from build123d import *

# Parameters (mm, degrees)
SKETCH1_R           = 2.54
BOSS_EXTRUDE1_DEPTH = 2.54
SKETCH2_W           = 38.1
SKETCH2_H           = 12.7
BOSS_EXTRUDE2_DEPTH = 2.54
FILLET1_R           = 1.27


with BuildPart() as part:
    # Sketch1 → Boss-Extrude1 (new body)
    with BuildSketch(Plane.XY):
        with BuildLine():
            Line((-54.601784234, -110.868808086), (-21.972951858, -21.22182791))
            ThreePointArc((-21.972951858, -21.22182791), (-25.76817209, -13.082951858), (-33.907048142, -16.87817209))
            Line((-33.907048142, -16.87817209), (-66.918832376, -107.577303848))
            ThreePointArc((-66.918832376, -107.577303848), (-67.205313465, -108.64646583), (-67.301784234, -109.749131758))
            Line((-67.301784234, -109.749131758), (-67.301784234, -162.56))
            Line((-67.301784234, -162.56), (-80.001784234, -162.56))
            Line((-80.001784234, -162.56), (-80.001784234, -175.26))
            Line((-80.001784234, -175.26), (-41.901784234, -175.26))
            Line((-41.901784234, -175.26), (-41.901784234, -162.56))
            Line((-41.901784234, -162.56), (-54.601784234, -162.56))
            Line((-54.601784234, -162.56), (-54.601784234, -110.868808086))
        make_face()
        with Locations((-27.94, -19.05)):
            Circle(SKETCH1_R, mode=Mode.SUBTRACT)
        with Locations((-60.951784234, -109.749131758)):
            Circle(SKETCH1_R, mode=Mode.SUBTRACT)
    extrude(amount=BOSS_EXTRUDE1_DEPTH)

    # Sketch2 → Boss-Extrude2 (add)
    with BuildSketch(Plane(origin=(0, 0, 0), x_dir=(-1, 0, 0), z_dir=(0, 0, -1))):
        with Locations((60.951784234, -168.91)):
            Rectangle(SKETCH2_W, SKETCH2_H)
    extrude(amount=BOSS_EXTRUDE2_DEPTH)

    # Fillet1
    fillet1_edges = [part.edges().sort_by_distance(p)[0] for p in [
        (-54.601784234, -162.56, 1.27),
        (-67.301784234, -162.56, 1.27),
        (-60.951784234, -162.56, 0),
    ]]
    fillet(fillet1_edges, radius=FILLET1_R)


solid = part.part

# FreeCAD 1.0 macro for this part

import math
import FreeCAD as App
import Part
import Sketcher

V = App.Vector
Q = App.Units.Quantity


def edges_at(feature, points):
    """Names of the edges that pass closest to the given points."""
    edges = feature.Shape.Edges
    near = lambda p: min(range(len(edges)), key=lambda i: edges[i].distToShape(Part.Vertex(*p))[0])
    return sorted({f"Edge{near(p) + 1}" for p in points})


def add_polygon(sketch, points):
    """Adds a closed chain of lines whose ends are joined by coincident constraints."""
    first, n = sketch.GeometryCount, len(points)
    for a, b in zip(points, points[1:] + points[:1]):
        sketch.addGeometry(Part.LineSegment(App.Vector(*a, 0), App.Vector(*b, 0)), False)
    for i in range(n):
        sketch.addConstraint(Sketcher.Constraint("Coincident", first + i, 2, first + (i + 1) % n, 1))

doc = App.newDocument("Part")
body = doc.addObject("PartDesign::Body", "Body")

sketch1 = doc.addObject("Sketcher::SketchObject", "Sketch")
body.addObject(sketch1)
sketch1.AttachmentSupport = (doc.XY_Plane, [""])
sketch1.MapMode = "FlatFace"
sketch1.addGeometry(Part.LineSegment(V(-54.601784, -110.868808, 0), V(-21.972952, -21.221828, 0)), False)
sketch1.addGeometry(Part.ArcOfCircle(Part.Circle(V(-27.94, -19.05, 0), V(0, 0, 1), 6.35), math.radians(-20), math.radians(160)), False)
sketch1.addGeometry(Part.LineSegment(V(-33.907048, -16.878172, 0), V(-66.918832, -107.577304, 0)), False)
sketch1.addGeometry(Part.ArcOfCircle(Part.Circle(V(-60.951784, -109.749132, 0), V(0, 0, 1), 6.35), math.radians(160), math.radians(180)), False)
sketch1.addGeometry(Part.LineSegment(V(-67.301784, -109.749132, 0), V(-67.301784, -162.56, 0)), False)
sketch1.addGeometry(Part.LineSegment(V(-67.301784, -162.56, 0), V(-80.001784, -162.56, 0)), False)
sketch1.addGeometry(Part.LineSegment(V(-80.001784, -162.56, 0), V(-80.001784, -175.26, 0)), False)
sketch1.addGeometry(Part.LineSegment(V(-80.001784, -175.26, 0), V(-41.901784, -175.26, 0)), False)
sketch1.addGeometry(Part.LineSegment(V(-41.901784, -175.26, 0), V(-41.901784, -162.56, 0)), False)
sketch1.addGeometry(Part.LineSegment(V(-41.901784, -162.56, 0), V(-54.601784, -162.56, 0)), False)
sketch1.addGeometry(Part.LineSegment(V(-54.601784, -162.56, 0), V(-54.601784, -110.868808, 0)), False)
sketch1.addGeometry(Part.Circle(V(-60.951784, -109.749132, 0), V(0, 0, 1), 2.54), False)
sketch1.addGeometry(Part.Circle(V(-27.94, -19.05, 0), V(0, 0, 1), 2.54), False)
sketch1.addConstraint(Sketcher.Constraint("Tangent", 0, 2, 1, 1))
sketch1.addConstraint(Sketcher.Constraint("Tangent", 1, 2, 2, 1))
sketch1.addConstraint(Sketcher.Constraint("Tangent", 2, 2, 3, 1))
sketch1.addConstraint(Sketcher.Constraint("Tangent", 3, 2, 4, 1))
sketch1.addConstraint(Sketcher.Constraint("Coincident", 4, 2, 5, 1))
sketch1.addConstraint(Sketcher.Constraint("Coincident", 5, 2, 6, 1))
sketch1.addConstraint(Sketcher.Constraint("Coincident", 6, 2, 7, 1))
sketch1.addConstraint(Sketcher.Constraint("Coincident", 7, 2, 8, 1))
sketch1.addConstraint(Sketcher.Constraint("Coincident", 8, 2, 9, 1))
sketch1.addConstraint(Sketcher.Constraint("Coincident", 9, 2, 10, 1))
sketch1.addConstraint(Sketcher.Constraint("Coincident", 10, 2, 0, 1))
sketch1.addConstraint(Sketcher.Constraint("Vertical", 4))
sketch1.addConstraint(Sketcher.Constraint("Horizontal", 5))
sketch1.addConstraint(Sketcher.Constraint("Vertical", 6))
sketch1.addConstraint(Sketcher.Constraint("Horizontal", 7))
sketch1.addConstraint(Sketcher.Constraint("Vertical", 8))
sketch1.addConstraint(Sketcher.Constraint("Horizontal", 9))
sketch1.addConstraint(Sketcher.Constraint("Vertical", 10))
sketch1.addConstraint(Sketcher.Constraint("Coincident", 11, 3, 3, 3))
sketch1.addConstraint(Sketcher.Constraint("Coincident", 12, 3, 1, 3))
sketch1.addConstraint(Sketcher.Constraint("Equal", 1, 3))
sketch1.addConstraint(Sketcher.Constraint("Equal", 11, 12))
sketch1.addConstraint(Sketcher.Constraint("Parallel", 0, 2))
sketch1.addConstraint(Sketcher.Constraint("Horizontal", 5, 2, 8, 2))
sketch1.addConstraint(Sketcher.Constraint("Equal", 5, 9))
sketch1.addConstraint(Sketcher.Constraint("Equal", 9, 6))
sketch1.addConstraint(Sketcher.Constraint("Diameter", 11, Q("0.2 in")))
sketch1.addConstraint(Sketcher.Constraint("Radius", 1, Q("0.25 in")))
sketch1.addConstraint(Sketcher.Constraint("DistanceX", 5, 2, 5, 1, Q("0.5 in")))
sketch1.addConstraint(Sketcher.Constraint("DistanceX", 7, 1, 7, 2, Q("1.5 in")))
sketch1.addConstraint(Sketcher.Constraint("Angle", 0, Q("70 deg")))
sketch1.addConstraint(Sketcher.Constraint("Distance", 2, Q("3.8 in")))
sketch1.addConstraint(Sketcher.Constraint("DistanceX", 1, 3, -1, 1, Q("1.1 in")))
sketch1.addConstraint(Sketcher.Constraint("DistanceY", 4, 2, -1, 1, Q("6.4 in")))
sketch1.addConstraint(Sketcher.Constraint("DistanceY", 1, 3, -1, 1, Q("0.75 in")))
pad1 = doc.addObject("PartDesign::Pad", "Pad")
body.addObject(pad1)
pad1.Profile = sketch1
pad1.Length = Q("0.1 in")

sketch2 = doc.addObject("Sketcher::SketchObject", "Sketch001")
body.addObject(sketch2)
sketch2.AttachmentSupport = (doc.XY_Plane, [""])
sketch2.MapMode = "FlatFace"
add_polygon(sketch2, [(-41.901784, -162.56), (-41.901784, -175.26), (-80.001784, -175.26), (-80.001784, -162.56)])
sketch2.addConstraint(Sketcher.Constraint("Vertical", 0))
sketch2.addConstraint(Sketcher.Constraint("Horizontal", 1))
sketch2.addConstraint(Sketcher.Constraint("Vertical", 2))
sketch2.addConstraint(Sketcher.Constraint("Horizontal", 3))
sketch2.addConstraint(Sketcher.Constraint("DistanceX", 1, 2, 1, 1, Q("1.5 in")))
sketch2.addConstraint(Sketcher.Constraint("DistanceY", 0, 2, 0, 1, Q("0.5 in")))
sketch2.addConstraint(Sketcher.Constraint("DistanceY", 0, 2, -1, 1, Q("6.9 in")))
sketch2.addConstraint(Sketcher.Constraint("DistanceX", 0, 2, -1, 1, Q("41.901784 mm")))
pad2 = doc.addObject("PartDesign::Pad", "Pad001")
body.addObject(pad2)
pad2.Profile = sketch2
pad2.Length = Q("0.1 in")
pad2.Reversed = True
doc.recompute()

fillet = doc.addObject("PartDesign::Fillet", "Fillet")
body.addObject(fillet)
fillet.Base = (pad2, edges_at(pad2, [(-54.602, -162.56, 1.27), (-67.302, -162.56, 1.27), (-60.952, -162.56, 0)]))
fillet.Radius = Q("0.05 in")

doc.recompute()
